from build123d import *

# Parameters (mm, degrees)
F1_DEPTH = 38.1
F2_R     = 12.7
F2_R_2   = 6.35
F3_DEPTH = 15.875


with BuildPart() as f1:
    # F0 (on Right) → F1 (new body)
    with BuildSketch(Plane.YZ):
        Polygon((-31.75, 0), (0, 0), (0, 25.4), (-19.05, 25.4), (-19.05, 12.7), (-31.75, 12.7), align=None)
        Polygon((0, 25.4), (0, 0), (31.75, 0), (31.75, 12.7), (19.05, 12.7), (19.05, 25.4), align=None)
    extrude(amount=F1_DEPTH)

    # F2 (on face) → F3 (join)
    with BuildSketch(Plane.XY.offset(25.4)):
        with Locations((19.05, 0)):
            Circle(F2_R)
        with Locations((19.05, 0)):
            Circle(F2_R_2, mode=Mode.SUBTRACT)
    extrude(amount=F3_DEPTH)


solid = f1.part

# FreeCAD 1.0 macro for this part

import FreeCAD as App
import Part
import Sketcher
from FreeCAD import Vector
Q = App.Units.Quantity


def add_polygon(sketch, points):
    """Adds a closed chain of lines whose ends are joined by coincident constraints."""
    first, n = sketch.GeometryCount, len(points)
    for a, b in zip(points, points[1:] + points[:1]):
        sketch.addGeometry(Part.LineSegment(App.Vector(*a, 0), App.Vector(*b, 0)), False)
    for i in range(n):
        sketch.addConstraint(Sketcher.Constraint("Coincident", first + i, 2, first + (i + 1) % n, 1))

doc = App.newDocument("Part")
body = doc.addObject("PartDesign::Body", "Body")

# Sketch on YZ plane
sketch1 = doc.addObject("Sketcher::SketchObject", "Sketch")
body.addObject(sketch1)
sketch1.AttachmentSupport = (doc.YZ_Plane, [""])
sketch1.MapMode = "FlatFace"
add_polygon(sketch1, [(-32, 0), (32, 0), (32, 13), (19, 13), (19, 25), (-19, 25), (-19, 13), (-32, 13)])  # lines 0-7
sketch1.addConstraint(Sketcher.Constraint("Horizontal", 0))
sketch1.addConstraint(Sketcher.Constraint("Vertical", 1))
sketch1.addConstraint(Sketcher.Constraint("Horizontal", 2))
sketch1.addConstraint(Sketcher.Constraint("Vertical", 3))
sketch1.addConstraint(Sketcher.Constraint("Horizontal", 4))
sketch1.addConstraint(Sketcher.Constraint("Vertical", 5))
sketch1.addConstraint(Sketcher.Constraint("Horizontal", 6))
sketch1.addConstraint(Sketcher.Constraint("Vertical", 7))
sketch1.addConstraint(Sketcher.Constraint("Symmetric", 0, 2, 7, 2, -1, 1))
sketch1.addConstraint(Sketcher.Constraint("Symmetric", 2, 2, 5, 2, -2))
sketch1.addConstraint(Sketcher.Constraint("Equal", 6, 1))
sketch1.addConstraint(Sketcher.Constraint("Equal", 1, 3))
sketch1.addConstraint(Sketcher.Constraint("DistanceX", 0, 1, 0, 2, Q("2.5 in")))
sketch1.addConstraint(Sketcher.Constraint("DistanceX", 2, 2, 2, 1, Q("0.5 in")))
pad1 = doc.addObject("PartDesign::Pad", "Pad")
body.addObject(pad1)
pad1.Profile = sketch1
pad1.Length = Q("1.5 in")

# Sketch on XY plane
sketch2 = doc.addObject("Sketcher::SketchObject", "Sketch001")
body.addObject(sketch2)
sketch2.AttachmentSupport = (doc.XY_Plane, [""])
sketch2.MapMode = "FlatFace"
sketch2.AttachmentOffset = App.Placement(Vector(0, 0, 1 * 25.4), App.Rotation())
sketch2.addGeometry(Part.Circle(Vector(19, 0, 0), Vector(0, 0, 1), 13), False)
sketch2.addGeometry(Part.Circle(Vector(19, 0, 0), Vector(0, 0, 1), 6), False)
sketch2.addConstraint(Sketcher.Constraint("Coincident", 1, 3, 0, 3))
sketch2.addConstraint(Sketcher.Constraint("PointOnObject", 0, 3, -1))
sketch2.addConstraint(Sketcher.Constraint("Diameter", 0, Q("1 in")))
sketch2.addConstraint(Sketcher.Constraint("Diameter", 1, Q("0.5 in")))
sketch2.addConstraint(Sketcher.Constraint("DistanceX", -1, 1, 0, 3, Q("0.75 in")))
pad2 = doc.addObject("PartDesign::Pad", "Pad001")
body.addObject(pad2)
pad2.Profile = sketch2
pad2.Length = Q("0.625 in")

doc.recompute()
